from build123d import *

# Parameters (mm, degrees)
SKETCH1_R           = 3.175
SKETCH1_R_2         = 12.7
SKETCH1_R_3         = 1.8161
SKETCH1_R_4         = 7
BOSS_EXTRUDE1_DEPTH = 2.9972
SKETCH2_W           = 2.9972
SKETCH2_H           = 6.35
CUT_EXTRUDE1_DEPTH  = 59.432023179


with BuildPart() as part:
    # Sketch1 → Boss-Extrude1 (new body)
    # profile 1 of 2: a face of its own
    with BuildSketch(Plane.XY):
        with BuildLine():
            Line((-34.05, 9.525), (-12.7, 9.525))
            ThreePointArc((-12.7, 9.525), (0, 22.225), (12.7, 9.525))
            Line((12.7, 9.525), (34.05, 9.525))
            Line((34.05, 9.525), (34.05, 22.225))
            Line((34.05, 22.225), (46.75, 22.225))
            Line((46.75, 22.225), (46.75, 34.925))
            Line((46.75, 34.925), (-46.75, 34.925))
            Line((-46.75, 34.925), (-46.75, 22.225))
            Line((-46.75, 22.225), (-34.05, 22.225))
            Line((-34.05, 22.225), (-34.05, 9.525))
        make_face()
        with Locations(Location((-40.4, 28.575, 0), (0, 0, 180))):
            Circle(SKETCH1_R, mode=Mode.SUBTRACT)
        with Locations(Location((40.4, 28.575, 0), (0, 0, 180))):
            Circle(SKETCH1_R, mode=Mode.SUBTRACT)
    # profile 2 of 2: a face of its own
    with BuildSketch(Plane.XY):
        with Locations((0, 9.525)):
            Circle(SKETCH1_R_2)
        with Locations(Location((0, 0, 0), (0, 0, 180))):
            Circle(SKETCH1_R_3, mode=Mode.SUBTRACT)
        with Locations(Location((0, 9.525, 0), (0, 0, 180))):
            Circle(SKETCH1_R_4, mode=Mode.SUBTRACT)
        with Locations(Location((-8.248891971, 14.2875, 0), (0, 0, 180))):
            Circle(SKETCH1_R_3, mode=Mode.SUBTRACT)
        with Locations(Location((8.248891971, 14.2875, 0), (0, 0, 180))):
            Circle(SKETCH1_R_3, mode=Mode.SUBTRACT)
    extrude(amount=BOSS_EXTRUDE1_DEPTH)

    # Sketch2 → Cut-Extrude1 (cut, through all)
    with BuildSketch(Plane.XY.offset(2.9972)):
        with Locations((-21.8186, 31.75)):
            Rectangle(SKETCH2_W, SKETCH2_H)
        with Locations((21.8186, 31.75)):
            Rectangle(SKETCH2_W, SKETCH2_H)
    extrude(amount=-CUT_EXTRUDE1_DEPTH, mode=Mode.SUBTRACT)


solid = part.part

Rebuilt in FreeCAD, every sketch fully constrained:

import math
import FreeCAD as App
import Part
import Sketcher
from FreeCAD import Vector
Q = App.Units.Quantity


def add_polygon(sketch, points):
    """Adds a closed chain of lines whose ends are joined by coincident constraints."""
    first, n = sketch.GeometryCount, len(points)
    for a, b in zip(points, points[1:] + points[:1]):
        sketch.addGeometry(Part.LineSegment(App.Vector(*a, 0), App.Vector(*b, 0)), False)
    for i in range(n):
        sketch.addConstraint(Sketcher.Constraint("Coincident", first + i, 2, first + (i + 1) % n, 1))

doc = App.newDocument("Part")
params = doc.addObject("Spreadsheet::Sheet", "Params")
for row, (alias, value) in enumerate([
    ("sketch1_radius", "0.5 in"),
    ("sketch1_diameter", "0.25 in"),
    ("sketch1_diameter2", "0.143 in"),
    ("sketch1_width", "0.5 in"),
    ("pad1_length", "0.118 in"),
    ("sketch2_height", "0.25 in"),
    ("sketch2_width", "0.118 in"),
], start=1):
    params.set(f"A{row}", alias)
    params.set(f"B{row}", "=" + value)
    params.setAlias(f"B{row}", alias)

body = doc.addObject("PartDesign::Body", "Body")

# Sketch on XY plane
sketch1 = body.newObject("Sketcher::SketchObject", "Sketch")
sketch1.AttachmentSupport = (doc.getObject("XY_Plane"), [""])
sketch1.MapMode = "FlatFace"
sketch1.addGeometry([
    Part.LineSegment(Vector(-34, 9.5, 0), Vector(-12.7, 9.5, 0)),  # 0
    Part.ArcOfCircle(Part.Circle(Vector(0, 9.5, 0), Vector(0, 0, 1), 12.7), math.radians(180), math.radians(360)),  # 1
    Part.LineSegment(Vector(12.7, 9.5, 0), Vector(34, 9.5, 0)),  # 2
    Part.LineSegment(Vector(34, 9.5, 0), Vector(34, 22.2, 0)),  # 3
    Part.LineSegment(Vector(34, 22.2, 0), Vector(46.8, 22.2, 0)),  # 4
    Part.LineSegment(Vector(46.8, 22.2, 0), Vector(46.8, 34.9, 0)),  # 5
    Part.LineSegment(Vector(46.8, 34.9, 0), Vector(-46.8, 34.9, 0)),  # 6
    Part.LineSegment(Vector(-46.8, 34.9, 0), Vector(-46.8, 22.2, 0)),  # 7
    Part.LineSegment(Vector(-46.8, 22.2, 0), Vector(-34, 22.2, 0)),  # 8
    Part.LineSegment(Vector(-34, 22.2, 0), Vector(-34, 9.5, 0)),  # 9
    Part.Circle(Vector(-40.4, 28.6, 0), Vector(0, 0, 1), 3.2),  # 10
    Part.Circle(Vector(40.4, 28.6, 0), Vector(0, 0, 1), 3.2),  # 11
    Part.Circle(Vector(8.2, 14.3, 0), Vector(0, 0, 1), 1.8),  # 12
    Part.Circle(Vector(0, 0, 0), Vector(0, 0, 1), 1.8),  # 13
    Part.Circle(Vector(-8.2, 14.3, 0), Vector(0, 0, 1), 1.8),  # 14
    Part.Circle(Vector(0, 9.5, 0), Vector(0, 0, 1), 7),  # 15
], False)
sketch1.addConstraint([
    Sketcher.Constraint("Coincident", 0, 2, 1, 1),
    Sketcher.Constraint("Coincident", 1, 2, 2, 1),
    Sketcher.Constraint("Coincident", 2, 2, 3, 1),
    Sketcher.Constraint("Coincident", 3, 2, 4, 1),
    Sketcher.Constraint("Coincident", 4, 2, 5, 1),
    Sketcher.Constraint("Coincident", 5, 2, 6, 1),
    Sketcher.Constraint("Coincident", 6, 2, 7, 1),
    Sketcher.Constraint("Coincident", 7, 2, 8, 1),
    Sketcher.Constraint("Coincident", 8, 2, 9, 1),
    Sketcher.Constraint("Coincident", 9, 2, 0, 1),
    Sketcher.Constraint("Horizontal", 0),
    Sketcher.Constraint("Horizontal", 2),
    Sketcher.Constraint("Vertical", 3),
    Sketcher.Constraint("Horizontal", 4),
    Sketcher.Constraint("Vertical", 5),
    Sketcher.Constraint("Horizontal", 6),
    Sketcher.Constraint("Vertical", 7),
    Sketcher.Constraint("Horizontal", 8),
    Sketcher.Constraint("Vertical", 9),
    Sketcher.Constraint("Coincident", 13, 3, -1, 1),
    Sketcher.Constraint("Coincident", 15, 3, 1, 3),
    Sketcher.Constraint("Equal", 10, 11),
    Sketcher.Constraint("Equal", 12, 13),
    Sketcher.Constraint("Equal", 13, 14),
    Sketcher.Constraint("Symmetric", 10, 3, 11, 3, -2),
    Sketcher.Constraint("Symmetric", 12, 3, 14, 3, -2),
    Sketcher.Constraint("Symmetric", 0, 2, 1, 2, -2),
    Sketcher.Constraint("Symmetric", 4, 2, 7, 2, -2),
    Sketcher.Constraint("Horizontal", 15, 3, 0, 2),
    Sketcher.Constraint("Equal", 0, 2),
    Sketcher.Constraint("Equal", 8, 3),
    Sketcher.Constraint("Equal", 3, 5),
    Sketcher.Constraint("Radius", 1, Q("0.5 in")),
    Sketcher.Constraint("Diameter", 10, Q("0.25 in")),
    Sketcher.Constraint("Diameter", 12, Q("0.143 in")),
    Sketcher.Constraint("DistanceX", 4, 1, 4, 2, Q("0.5 in")),
    Sketcher.Constraint("Diameter", 15, Q("14 mm")),
    Sketcher.Constraint("DistanceY", 1, 3, 10, 3, Q("0.75 in")),
    Sketcher.Constraint("DistanceX", 2, 2, 11, 3, Q("0.25 in")),
    Sketcher.Constraint("DistanceY", -1, 1, 1, 3, Q("0.375 in")),
    Sketcher.Constraint("DistanceY", -1, 1, 12, 3, Q("0.5625 in")),
    Sketcher.Constraint("DistanceX", 0, 1, 0, 2, Q("21.35 mm")),
    Sketcher.Constraint("DistanceX", -1, 1, 12, 3, Q("8.248892 mm")),
])
sketch1.setExpression("Constraints[32]", "Params.sketch1_radius")
sketch1.setExpression("Constraints[33]", "Params.sketch1_diameter")
sketch1.setExpression("Constraints[34]", "Params.sketch1_diameter2")
sketch1.setExpression("Constraints[35]", "Params.sketch1_width")
pad1 = body.newObject("PartDesign::Pad", "Pad")
pad1.Profile = sketch1
pad1.setExpression("Length", "Params.pad1_length")

# Sketch on XY plane
sketch2 = body.newObject("Sketcher::SketchObject", "Sketch001")
sketch2.AttachmentSupport = (doc.getObject("XY_Plane"), [""])
sketch2.MapMode = "FlatFace"
sketch2.AttachmentOffset = App.Placement(Vector(0, 0, 0.118 * 25.4), App.Rotation())
add_polygon(sketch2, [(-23.3, 34.9), (-23.3, 28.6), (-20.3, 28.6), (-20.3, 34.9)])  # lines 0-3
add_polygon(sketch2, [(20.3, 34.9), (20.3, 28.6), (23.3, 28.6), (23.3, 34.9)])  # lines 4-7
sketch2.addConstraint([
    Sketcher.Constraint("Vertical", 0),
    Sketcher.Constraint("Horizontal", 1),
    Sketcher.Constraint("Vertical", 2),
    Sketcher.Constraint("Horizontal", 3),
    Sketcher.Constraint("Vertical", 4),
    Sketcher.Constraint("Horizontal", 5),
    Sketcher.Constraint("Vertical", 6),
    Sketcher.Constraint("Horizontal", 7),
    Sketcher.Constraint("Symmetric", 1, 2, 4, 2, -2),
    Sketcher.Constraint("Symmetric", 3, 2, 6, 2, -2),
    Sketcher.Constraint("DistanceY", 0, 2, 0, 1, Q("0.25 in")),
    Sketcher.Constraint("DistanceX", 1, 2, -1, 1, Q("0.8 in")),
    Sketcher.Constraint("DistanceX", 1, 1, 1, 2, Q("0.118 in")),
    Sketcher.Constraint("DistanceY", -1, 1, 0, 2, Q("1.125 in")),
])
sketch2.setExpression("Constraints[18]", "Params.sketch2_height")
sketch2.setExpression("Constraints[20]", "Params.sketch2_width")
pocket1 = body.newObject("PartDesign::Pocket", "Pocket")
pocket1.Profile = sketch2
pocket1.Type = "ThroughAll"

doc.recompute()
